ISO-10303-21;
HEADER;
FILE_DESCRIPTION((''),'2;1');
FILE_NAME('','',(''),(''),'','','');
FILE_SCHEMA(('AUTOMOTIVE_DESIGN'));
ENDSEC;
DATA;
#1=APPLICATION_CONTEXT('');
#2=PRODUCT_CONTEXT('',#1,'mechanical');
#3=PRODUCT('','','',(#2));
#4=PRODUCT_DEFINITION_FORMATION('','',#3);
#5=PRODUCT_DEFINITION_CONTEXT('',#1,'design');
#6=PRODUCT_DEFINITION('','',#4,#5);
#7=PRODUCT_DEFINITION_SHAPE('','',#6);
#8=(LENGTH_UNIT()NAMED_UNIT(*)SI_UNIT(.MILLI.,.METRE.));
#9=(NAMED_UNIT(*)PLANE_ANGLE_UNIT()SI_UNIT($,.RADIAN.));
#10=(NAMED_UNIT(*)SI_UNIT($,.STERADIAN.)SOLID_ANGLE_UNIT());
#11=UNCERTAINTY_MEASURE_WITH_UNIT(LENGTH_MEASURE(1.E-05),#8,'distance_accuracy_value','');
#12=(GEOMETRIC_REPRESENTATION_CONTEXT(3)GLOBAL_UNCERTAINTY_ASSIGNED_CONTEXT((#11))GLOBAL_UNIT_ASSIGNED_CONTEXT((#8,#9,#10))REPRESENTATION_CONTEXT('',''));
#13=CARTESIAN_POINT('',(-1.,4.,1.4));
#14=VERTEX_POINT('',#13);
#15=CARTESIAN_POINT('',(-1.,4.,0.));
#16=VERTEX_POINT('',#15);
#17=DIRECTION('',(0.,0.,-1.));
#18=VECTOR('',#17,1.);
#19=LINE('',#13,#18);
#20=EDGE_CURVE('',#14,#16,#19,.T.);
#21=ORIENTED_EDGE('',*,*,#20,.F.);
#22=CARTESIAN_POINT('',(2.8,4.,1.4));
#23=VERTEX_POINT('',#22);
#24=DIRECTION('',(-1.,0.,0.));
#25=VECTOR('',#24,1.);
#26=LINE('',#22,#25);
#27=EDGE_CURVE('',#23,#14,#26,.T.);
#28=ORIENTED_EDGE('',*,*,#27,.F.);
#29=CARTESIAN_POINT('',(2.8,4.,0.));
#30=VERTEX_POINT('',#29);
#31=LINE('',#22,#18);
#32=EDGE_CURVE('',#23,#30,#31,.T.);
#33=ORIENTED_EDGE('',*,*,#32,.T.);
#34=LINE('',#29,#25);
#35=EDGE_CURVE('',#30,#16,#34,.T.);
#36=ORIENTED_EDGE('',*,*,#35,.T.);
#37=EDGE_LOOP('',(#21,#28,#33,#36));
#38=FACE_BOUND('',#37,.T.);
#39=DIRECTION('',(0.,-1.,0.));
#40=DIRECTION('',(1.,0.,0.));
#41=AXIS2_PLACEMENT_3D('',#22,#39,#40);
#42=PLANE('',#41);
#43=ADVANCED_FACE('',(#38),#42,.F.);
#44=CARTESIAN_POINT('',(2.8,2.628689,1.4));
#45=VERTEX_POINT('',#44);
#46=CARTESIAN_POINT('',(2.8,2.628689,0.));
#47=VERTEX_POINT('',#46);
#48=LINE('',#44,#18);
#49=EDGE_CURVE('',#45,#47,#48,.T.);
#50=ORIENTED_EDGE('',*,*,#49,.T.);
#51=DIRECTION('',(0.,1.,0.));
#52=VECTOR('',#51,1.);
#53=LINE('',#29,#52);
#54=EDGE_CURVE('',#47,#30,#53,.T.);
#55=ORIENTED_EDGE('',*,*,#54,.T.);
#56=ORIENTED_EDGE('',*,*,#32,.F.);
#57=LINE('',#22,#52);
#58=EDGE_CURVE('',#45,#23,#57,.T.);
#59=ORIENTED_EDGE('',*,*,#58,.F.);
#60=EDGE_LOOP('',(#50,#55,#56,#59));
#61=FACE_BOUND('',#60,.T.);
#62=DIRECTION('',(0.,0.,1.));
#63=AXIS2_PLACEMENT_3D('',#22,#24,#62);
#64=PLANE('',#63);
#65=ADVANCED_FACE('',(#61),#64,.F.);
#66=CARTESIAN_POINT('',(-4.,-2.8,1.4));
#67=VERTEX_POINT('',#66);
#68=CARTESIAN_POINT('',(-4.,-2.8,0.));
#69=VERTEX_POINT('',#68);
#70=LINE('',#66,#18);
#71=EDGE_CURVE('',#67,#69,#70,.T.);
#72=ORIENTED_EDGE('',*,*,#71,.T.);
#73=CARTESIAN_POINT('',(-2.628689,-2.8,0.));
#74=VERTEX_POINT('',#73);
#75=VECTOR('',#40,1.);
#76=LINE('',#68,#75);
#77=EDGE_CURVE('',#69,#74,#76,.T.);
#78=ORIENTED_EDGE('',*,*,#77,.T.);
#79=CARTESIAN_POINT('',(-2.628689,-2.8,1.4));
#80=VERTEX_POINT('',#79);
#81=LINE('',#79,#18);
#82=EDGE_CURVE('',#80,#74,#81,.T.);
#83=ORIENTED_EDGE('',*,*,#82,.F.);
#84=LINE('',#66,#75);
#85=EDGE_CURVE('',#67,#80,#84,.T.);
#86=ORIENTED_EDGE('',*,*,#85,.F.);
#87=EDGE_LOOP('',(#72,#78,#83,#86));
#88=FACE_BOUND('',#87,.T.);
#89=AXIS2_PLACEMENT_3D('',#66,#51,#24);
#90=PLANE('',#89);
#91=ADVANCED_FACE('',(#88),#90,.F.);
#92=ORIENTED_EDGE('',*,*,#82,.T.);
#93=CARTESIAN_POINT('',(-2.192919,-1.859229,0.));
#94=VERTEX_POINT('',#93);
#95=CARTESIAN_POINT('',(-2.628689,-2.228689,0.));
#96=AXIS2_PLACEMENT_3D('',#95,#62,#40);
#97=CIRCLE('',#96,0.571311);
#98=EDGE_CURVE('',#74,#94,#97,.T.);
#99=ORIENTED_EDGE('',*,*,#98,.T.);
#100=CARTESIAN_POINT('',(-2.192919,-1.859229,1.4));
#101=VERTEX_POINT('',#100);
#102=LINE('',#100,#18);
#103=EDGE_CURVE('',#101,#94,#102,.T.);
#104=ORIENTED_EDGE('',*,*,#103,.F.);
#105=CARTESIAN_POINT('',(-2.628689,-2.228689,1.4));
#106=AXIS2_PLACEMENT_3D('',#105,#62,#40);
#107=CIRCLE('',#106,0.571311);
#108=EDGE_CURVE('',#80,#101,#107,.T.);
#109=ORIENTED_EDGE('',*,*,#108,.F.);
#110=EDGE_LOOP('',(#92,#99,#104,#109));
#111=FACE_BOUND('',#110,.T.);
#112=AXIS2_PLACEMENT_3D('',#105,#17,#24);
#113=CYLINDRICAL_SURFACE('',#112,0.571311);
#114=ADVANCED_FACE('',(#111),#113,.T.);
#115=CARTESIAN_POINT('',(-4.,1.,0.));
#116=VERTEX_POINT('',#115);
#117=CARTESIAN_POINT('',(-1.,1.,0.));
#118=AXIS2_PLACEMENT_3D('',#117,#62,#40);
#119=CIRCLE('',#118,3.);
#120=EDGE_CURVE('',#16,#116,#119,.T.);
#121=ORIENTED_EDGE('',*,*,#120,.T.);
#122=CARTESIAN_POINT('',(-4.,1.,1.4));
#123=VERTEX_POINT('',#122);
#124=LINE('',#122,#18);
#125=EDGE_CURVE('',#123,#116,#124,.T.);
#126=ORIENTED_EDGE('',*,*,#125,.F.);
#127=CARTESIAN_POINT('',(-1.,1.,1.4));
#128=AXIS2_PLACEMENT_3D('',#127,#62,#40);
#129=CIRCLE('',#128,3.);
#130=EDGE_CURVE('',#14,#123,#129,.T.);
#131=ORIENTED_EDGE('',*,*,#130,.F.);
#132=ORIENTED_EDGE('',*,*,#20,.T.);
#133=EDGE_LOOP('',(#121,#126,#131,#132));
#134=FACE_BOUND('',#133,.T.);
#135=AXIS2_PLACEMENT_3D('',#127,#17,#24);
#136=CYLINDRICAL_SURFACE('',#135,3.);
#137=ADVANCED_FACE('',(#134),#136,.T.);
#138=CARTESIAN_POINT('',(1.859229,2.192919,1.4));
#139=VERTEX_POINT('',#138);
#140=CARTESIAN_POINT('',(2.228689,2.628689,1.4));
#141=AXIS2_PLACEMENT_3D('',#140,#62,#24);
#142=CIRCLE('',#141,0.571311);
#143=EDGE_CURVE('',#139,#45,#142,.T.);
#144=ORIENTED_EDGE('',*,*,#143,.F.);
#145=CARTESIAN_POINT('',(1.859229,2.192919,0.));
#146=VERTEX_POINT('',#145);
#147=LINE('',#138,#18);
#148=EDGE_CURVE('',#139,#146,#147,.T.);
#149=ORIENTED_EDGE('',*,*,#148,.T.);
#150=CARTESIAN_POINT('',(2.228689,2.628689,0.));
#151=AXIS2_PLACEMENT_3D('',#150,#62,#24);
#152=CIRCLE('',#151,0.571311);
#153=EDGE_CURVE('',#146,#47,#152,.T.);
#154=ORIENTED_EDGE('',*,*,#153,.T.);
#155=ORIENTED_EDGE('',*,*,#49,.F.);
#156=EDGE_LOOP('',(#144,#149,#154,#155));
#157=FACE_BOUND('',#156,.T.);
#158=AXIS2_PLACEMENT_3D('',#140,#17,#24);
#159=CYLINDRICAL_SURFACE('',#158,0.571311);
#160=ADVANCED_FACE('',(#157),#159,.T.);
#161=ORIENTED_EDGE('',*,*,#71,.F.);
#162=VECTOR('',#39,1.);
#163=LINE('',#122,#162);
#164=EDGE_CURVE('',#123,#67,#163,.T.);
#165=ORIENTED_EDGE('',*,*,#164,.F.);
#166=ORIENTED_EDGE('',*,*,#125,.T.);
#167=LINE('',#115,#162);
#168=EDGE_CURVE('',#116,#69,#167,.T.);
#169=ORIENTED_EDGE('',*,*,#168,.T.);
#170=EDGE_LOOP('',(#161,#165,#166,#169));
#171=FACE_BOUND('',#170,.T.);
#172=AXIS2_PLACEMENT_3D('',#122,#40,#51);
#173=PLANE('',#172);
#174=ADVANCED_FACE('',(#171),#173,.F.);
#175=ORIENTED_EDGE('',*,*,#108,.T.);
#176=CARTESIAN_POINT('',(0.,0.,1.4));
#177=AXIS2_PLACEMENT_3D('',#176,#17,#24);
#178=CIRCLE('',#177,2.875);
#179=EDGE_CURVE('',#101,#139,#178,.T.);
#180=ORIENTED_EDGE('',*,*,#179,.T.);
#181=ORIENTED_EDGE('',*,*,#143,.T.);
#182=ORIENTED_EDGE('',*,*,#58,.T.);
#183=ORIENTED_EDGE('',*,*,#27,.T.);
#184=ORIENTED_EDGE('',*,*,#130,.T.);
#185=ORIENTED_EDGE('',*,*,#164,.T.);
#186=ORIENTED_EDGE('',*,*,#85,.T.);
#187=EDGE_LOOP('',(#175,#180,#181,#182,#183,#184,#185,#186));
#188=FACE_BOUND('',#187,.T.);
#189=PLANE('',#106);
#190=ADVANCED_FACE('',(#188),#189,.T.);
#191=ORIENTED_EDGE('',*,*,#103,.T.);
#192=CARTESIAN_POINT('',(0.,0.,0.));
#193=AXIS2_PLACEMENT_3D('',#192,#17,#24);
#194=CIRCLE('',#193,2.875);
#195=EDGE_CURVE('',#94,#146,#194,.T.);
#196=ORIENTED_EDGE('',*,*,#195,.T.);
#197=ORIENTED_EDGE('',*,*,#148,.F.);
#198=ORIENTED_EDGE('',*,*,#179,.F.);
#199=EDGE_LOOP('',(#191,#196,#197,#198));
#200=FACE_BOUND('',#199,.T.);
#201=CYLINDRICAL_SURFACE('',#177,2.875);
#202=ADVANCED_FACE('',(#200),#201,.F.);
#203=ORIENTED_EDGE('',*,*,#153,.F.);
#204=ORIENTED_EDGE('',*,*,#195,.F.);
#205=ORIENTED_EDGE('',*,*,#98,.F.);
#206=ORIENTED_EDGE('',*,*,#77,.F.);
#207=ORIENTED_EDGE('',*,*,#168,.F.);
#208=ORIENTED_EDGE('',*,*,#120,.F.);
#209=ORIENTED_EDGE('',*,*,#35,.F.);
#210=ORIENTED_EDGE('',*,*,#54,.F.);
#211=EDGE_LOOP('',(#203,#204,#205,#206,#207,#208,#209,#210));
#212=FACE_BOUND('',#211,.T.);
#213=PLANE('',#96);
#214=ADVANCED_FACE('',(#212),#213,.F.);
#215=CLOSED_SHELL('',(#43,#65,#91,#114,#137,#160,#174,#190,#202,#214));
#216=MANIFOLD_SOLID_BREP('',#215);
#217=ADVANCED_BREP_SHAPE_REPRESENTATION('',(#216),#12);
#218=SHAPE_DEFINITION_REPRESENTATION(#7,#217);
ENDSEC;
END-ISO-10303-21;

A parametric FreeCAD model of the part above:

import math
import FreeCAD as App
import Part
import Sketcher
Q = App.Units.Quantity

doc = App.newDocument("Part")
body = doc.addObject("PartDesign::Body", "Body")

# Sketch on XY plane
sketch1 = body.newObject("Sketcher::SketchObject", "Sketch")
sketch1.AttachmentSupport = (doc.getObject("XY_Plane"), [""])
sketch1.MapMode = "FlatFace"
sketch1.addGeometry([
    Part.LineSegment(App.Vector(2.8, 4, 0), App.Vector(-1, 4, 0)),  # 0
    Part.ArcOfCircle(Part.Circle(App.Vector(-1, 1, 0), App.Vector(0, 0, 1), 3), math.radians(90), math.radians(180)),  # 1
    Part.LineSegment(App.Vector(-4, 1, 0), App.Vector(-4, -2.8, 0)),  # 2
    Part.LineSegment(App.Vector(-4, -2.8, 0), App.Vector(-2.628689, -2.8, 0)),  # 3
    Part.ArcOfCircle(Part.Circle(App.Vector(-2.628689, -2.228689, 0), App.Vector(0, 0, 1), 0.571311), math.radians(-90), math.radians(40.292375)),  # 4
    Part.ArcOfCircle(Part.Circle(App.Vector(0, 0, 0), App.Vector(0, 0, 1), 2.875), math.radians(49.707625), math.radians(220.292375)),  # 5
    Part.ArcOfCircle(Part.Circle(App.Vector(2.228689, 2.628689, 0), App.Vector(0, 0, 1), 0.571311), math.radians(-130.292375), math.radians(0)),  # 6
    Part.LineSegment(App.Vector(2.8, 2.628689, 0), App.Vector(2.8, 4, 0)),  # 7
], False)
sketch1.addConstraint([
    Sketcher.Constraint("Tangent", 0, 2, 1, 1),
    Sketcher.Constraint("Tangent", 1, 2, 2, 1),
    Sketcher.Constraint("Coincident", 2, 2, 3, 1),
    Sketcher.Constraint("Tangent", 3, 2, 4, 1),
    Sketcher.Constraint("Tangent", 4, 2, 5, 2),
    Sketcher.Constraint("Tangent", 5, 1, 6, 1),
    Sketcher.Constraint("Tangent", 6, 2, 7, 1),
    Sketcher.Constraint("Coincident", 7, 2, 0, 1),
    Sketcher.Constraint("Horizontal", 0),
    Sketcher.Constraint("Vertical", 2),
    Sketcher.Constraint("Horizontal", 3),
    Sketcher.Constraint("Vertical", 7),
    Sketcher.Constraint("Coincident", 5, 3, -1, 1),
    Sketcher.Constraint("Equal", 4, 6),
    Sketcher.Constraint("Equal", 0, 2),
    Sketcher.Constraint("Equal", 3, 7),
    Sketcher.Constraint("Radius", 1, Q("3 mm")),
    Sketcher.Constraint("DistanceX", 0, 2, 0, 1, Q("3.8 mm")),
    Sketcher.Constraint("DistanceX", 1, 3, -1, 1, Q("1 mm")),
    Sketcher.Constraint("Radius", 5, Q("2.875 mm")),
    Sketcher.Constraint("Radius", 4, Q("0.571311 mm")),
])
pad1 = body.newObject("PartDesign::Pad", "Pad")
pad1.Profile = sketch1
pad1.Length = 1.4

doc.recompute()
